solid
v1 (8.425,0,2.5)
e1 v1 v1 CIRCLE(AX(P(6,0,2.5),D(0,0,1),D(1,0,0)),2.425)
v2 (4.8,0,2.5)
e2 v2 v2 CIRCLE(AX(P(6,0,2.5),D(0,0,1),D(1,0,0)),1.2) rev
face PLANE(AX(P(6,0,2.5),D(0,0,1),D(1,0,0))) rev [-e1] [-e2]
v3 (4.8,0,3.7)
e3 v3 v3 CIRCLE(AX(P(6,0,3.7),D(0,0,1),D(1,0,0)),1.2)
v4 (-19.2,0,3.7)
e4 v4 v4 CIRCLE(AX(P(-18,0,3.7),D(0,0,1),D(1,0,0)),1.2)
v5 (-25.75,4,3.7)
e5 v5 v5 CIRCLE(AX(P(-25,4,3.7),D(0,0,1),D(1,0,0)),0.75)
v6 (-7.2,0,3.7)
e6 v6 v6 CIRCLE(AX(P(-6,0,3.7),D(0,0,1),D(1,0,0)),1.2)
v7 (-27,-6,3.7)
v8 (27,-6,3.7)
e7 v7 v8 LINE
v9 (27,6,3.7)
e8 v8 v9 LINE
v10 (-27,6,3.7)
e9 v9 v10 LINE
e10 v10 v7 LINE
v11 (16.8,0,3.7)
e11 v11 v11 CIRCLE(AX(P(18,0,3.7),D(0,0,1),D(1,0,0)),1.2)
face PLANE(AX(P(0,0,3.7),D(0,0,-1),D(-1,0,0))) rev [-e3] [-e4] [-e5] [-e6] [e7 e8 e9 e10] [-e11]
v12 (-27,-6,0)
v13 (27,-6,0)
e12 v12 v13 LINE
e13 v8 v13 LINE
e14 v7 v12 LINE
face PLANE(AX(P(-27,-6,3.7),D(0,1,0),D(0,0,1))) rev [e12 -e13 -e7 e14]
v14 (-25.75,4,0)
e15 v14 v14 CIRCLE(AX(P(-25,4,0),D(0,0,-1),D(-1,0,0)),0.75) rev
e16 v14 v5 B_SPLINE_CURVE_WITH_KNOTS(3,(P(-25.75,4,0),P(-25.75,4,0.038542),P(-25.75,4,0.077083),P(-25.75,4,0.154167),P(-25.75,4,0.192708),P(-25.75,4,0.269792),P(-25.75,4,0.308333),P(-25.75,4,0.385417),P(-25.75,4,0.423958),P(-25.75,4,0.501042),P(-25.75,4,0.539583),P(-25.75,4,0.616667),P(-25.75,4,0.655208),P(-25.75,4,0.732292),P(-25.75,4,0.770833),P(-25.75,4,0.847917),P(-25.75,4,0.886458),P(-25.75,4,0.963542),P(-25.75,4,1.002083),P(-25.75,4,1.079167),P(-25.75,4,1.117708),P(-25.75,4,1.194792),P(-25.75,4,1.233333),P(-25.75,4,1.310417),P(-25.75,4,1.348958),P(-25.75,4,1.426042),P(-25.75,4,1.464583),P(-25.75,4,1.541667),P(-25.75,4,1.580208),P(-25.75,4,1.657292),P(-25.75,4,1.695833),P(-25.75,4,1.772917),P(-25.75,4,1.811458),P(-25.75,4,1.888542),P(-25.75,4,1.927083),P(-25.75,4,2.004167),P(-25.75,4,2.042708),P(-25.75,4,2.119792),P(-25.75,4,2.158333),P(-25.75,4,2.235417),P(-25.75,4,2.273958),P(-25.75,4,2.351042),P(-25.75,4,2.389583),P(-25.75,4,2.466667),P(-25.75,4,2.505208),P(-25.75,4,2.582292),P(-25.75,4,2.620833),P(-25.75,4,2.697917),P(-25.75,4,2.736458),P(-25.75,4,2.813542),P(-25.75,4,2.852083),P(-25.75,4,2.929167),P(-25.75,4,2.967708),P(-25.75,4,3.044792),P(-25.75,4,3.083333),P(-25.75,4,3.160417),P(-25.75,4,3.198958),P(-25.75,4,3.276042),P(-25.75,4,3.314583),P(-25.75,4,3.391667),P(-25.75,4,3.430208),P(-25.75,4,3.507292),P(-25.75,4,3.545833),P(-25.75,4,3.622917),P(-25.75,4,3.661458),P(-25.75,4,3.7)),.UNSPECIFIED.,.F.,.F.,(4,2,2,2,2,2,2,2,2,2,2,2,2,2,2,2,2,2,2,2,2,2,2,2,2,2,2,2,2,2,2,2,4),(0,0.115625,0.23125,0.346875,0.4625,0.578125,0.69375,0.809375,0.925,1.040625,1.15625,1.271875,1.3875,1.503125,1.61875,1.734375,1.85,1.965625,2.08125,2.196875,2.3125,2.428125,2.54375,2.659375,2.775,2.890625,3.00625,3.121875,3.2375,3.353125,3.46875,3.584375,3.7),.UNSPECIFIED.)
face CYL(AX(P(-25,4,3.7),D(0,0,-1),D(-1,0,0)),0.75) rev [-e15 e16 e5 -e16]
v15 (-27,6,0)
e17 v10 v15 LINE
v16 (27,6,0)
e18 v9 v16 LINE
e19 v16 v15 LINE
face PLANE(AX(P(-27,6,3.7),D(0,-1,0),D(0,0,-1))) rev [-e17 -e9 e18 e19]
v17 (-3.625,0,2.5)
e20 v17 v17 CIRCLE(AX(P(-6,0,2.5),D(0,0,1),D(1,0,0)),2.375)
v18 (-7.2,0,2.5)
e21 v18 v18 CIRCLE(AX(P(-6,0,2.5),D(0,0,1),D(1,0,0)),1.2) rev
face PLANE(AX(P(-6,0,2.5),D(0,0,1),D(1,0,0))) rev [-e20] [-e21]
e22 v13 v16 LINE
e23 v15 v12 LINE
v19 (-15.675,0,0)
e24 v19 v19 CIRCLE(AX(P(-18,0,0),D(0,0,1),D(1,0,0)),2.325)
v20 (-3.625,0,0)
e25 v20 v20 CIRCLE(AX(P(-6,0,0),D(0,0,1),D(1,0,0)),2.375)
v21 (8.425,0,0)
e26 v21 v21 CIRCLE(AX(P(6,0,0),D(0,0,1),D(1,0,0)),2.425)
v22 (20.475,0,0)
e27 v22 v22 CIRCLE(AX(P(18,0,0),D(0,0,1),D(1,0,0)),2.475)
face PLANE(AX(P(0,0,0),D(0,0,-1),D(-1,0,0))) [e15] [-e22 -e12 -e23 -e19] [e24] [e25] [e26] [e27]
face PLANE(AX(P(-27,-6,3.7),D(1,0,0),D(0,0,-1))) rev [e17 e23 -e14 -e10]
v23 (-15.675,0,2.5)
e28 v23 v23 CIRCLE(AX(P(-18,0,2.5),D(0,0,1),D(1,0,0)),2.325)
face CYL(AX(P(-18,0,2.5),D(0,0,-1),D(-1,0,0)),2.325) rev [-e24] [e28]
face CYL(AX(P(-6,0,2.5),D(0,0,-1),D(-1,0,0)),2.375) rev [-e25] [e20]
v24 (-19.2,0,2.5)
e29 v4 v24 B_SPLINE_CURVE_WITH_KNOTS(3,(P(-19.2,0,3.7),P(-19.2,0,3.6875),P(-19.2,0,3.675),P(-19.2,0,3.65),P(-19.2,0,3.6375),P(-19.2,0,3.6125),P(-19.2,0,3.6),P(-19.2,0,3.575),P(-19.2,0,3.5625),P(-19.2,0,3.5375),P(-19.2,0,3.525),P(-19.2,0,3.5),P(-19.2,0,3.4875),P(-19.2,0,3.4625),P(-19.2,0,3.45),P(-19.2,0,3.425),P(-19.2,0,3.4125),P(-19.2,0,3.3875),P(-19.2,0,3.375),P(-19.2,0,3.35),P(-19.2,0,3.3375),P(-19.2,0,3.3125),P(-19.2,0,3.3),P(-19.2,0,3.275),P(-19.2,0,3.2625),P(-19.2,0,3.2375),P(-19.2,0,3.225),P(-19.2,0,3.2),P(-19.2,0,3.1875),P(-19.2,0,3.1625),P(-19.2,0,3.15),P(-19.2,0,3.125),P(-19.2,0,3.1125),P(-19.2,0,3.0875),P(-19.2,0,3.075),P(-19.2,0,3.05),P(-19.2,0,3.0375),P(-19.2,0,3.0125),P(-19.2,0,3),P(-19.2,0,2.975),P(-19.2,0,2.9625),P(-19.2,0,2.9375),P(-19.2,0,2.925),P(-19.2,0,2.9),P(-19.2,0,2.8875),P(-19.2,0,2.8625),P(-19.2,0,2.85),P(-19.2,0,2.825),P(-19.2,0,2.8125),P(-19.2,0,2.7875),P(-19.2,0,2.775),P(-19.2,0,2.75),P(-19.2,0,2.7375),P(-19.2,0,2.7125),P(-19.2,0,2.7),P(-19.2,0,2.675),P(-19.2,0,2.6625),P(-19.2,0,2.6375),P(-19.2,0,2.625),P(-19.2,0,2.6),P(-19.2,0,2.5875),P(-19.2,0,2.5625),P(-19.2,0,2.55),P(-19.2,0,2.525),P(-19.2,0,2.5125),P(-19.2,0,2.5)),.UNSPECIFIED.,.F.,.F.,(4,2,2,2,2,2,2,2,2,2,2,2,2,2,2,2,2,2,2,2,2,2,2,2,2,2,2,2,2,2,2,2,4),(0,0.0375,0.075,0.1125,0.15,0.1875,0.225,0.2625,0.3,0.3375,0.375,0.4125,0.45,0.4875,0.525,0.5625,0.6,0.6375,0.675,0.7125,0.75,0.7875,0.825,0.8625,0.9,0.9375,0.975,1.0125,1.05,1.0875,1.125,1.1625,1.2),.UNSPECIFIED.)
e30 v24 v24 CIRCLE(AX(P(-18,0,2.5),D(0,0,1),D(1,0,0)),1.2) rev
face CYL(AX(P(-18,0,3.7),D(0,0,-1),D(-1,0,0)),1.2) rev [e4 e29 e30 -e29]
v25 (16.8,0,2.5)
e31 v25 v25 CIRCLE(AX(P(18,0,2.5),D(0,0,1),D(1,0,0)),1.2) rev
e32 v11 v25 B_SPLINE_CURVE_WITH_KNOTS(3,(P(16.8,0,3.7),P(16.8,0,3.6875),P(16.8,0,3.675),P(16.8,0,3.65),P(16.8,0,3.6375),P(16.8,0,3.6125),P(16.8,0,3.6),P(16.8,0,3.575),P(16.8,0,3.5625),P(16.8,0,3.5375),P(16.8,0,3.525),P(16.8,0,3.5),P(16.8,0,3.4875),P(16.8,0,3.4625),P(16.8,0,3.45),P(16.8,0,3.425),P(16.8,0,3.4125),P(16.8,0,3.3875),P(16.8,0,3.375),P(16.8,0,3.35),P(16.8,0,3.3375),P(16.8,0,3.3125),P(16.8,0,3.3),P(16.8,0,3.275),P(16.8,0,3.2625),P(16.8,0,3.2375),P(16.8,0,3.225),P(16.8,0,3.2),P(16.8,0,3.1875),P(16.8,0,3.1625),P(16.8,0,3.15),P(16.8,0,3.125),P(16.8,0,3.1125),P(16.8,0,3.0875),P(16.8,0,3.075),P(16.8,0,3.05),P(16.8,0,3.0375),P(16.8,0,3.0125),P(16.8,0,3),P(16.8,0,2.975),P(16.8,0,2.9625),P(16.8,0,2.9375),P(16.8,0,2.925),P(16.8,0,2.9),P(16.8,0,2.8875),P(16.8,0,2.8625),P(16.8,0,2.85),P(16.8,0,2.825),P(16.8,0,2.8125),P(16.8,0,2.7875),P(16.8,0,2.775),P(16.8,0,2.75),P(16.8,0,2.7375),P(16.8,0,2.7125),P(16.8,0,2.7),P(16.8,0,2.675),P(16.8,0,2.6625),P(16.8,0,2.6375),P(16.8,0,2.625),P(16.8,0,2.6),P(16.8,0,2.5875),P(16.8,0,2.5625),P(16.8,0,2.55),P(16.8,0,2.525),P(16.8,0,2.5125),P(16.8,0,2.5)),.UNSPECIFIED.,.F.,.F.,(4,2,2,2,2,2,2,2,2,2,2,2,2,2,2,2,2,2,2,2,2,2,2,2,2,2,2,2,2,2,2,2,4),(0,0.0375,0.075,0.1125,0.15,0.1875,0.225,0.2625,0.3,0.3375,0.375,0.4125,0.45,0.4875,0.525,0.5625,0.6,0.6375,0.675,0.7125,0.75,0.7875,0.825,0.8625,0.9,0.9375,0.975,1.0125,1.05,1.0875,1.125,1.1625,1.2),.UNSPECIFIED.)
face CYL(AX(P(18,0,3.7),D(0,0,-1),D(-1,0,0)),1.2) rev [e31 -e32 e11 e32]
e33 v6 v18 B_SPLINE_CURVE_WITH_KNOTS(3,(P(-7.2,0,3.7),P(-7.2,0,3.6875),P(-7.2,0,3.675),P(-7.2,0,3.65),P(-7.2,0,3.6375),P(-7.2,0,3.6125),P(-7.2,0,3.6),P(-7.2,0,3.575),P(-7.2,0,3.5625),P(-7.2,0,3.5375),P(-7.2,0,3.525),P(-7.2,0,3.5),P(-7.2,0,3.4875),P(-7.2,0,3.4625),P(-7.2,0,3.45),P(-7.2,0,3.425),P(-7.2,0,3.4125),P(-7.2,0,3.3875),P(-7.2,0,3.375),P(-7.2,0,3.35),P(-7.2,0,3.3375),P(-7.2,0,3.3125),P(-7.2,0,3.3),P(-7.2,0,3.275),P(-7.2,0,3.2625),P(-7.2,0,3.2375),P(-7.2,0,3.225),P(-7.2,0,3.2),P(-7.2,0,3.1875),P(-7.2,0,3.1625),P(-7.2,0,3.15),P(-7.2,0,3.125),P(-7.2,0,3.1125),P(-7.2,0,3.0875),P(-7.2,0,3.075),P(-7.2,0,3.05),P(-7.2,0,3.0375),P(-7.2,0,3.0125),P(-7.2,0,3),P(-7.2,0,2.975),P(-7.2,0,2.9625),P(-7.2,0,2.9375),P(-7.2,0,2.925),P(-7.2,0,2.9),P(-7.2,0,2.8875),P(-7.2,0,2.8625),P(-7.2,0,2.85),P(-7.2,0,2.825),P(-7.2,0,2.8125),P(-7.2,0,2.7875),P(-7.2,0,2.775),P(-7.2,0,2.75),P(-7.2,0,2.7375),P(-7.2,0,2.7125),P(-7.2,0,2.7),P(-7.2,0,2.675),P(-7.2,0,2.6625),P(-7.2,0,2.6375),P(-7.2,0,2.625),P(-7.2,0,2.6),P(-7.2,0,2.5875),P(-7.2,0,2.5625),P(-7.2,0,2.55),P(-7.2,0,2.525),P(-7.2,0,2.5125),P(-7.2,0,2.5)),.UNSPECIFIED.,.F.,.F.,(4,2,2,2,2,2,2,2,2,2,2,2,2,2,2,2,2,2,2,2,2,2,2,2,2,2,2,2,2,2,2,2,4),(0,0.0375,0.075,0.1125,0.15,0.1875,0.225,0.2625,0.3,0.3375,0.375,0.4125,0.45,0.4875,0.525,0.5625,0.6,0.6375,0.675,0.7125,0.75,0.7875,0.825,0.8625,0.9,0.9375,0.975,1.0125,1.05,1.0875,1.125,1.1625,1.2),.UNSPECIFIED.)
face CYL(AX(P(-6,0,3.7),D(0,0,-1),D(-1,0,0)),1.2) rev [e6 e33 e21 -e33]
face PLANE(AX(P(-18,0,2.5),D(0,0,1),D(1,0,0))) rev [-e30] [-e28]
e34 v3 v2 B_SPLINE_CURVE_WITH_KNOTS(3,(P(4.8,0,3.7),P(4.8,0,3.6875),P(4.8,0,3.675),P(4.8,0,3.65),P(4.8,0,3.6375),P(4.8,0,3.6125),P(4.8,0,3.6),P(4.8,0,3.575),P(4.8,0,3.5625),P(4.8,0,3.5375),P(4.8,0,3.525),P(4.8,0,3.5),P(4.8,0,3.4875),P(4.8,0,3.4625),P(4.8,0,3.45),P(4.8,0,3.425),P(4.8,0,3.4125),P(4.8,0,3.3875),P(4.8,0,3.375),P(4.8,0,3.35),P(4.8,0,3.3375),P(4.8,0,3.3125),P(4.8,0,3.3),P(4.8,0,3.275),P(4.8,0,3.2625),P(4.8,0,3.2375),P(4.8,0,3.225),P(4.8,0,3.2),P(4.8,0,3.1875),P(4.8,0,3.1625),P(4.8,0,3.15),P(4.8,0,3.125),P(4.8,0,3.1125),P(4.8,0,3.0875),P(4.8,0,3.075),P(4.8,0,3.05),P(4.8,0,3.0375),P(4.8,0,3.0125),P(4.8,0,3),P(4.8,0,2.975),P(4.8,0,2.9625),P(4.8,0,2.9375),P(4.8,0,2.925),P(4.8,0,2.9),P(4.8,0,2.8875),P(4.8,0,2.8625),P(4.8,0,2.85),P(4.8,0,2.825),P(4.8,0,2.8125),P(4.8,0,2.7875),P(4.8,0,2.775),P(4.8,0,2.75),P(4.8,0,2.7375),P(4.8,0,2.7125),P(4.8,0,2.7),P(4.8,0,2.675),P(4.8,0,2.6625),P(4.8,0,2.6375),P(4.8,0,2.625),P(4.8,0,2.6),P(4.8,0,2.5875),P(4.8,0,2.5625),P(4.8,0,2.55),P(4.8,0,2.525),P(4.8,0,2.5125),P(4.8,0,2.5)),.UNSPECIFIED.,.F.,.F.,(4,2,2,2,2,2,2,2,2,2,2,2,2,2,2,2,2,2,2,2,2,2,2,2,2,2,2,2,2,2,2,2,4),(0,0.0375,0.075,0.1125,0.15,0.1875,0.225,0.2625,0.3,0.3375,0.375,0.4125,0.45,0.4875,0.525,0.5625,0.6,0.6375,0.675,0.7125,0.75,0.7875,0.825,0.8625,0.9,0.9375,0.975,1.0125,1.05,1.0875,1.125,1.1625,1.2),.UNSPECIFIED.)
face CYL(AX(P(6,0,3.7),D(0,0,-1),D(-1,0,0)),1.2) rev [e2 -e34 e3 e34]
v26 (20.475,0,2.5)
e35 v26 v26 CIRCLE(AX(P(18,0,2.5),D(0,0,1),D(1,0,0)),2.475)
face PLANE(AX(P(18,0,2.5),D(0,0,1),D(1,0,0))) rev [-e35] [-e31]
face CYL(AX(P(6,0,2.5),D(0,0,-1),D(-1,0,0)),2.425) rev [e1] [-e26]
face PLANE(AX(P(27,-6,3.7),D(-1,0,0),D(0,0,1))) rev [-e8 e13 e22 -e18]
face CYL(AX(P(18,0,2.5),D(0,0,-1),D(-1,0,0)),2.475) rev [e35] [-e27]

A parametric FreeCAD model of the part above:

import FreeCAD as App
import Part
import Sketcher

V = App.Vector
Q = App.Units.Quantity


def add_polygon(sketch, points):
    """Adds a closed chain of lines whose ends are joined by coincident constraints."""
    first, n = sketch.GeometryCount, len(points)
    for a, b in zip(points, points[1:] + points[:1]):
        sketch.addGeometry(Part.LineSegment(App.Vector(*a, 0), App.Vector(*b, 0)), False)
    for i in range(n):
        sketch.addConstraint(Sketcher.Constraint("Coincident", first + i, 2, first + (i + 1) % n, 1))

doc = App.newDocument("Part")
body = doc.addObject("PartDesign::Body", "Body")

# Sketch on XY plane
sketch1 = body.newObject("Sketcher::SketchObject", "Sketch")
sketch1.AttachmentSupport = (doc.getObject("XY_Plane"), [""])
sketch1.MapMode = "FlatFace"
add_polygon(sketch1, [(-27, 6), (-27, -6), (27, -6), (27, 6)])  # lines 0-3
sketch1.addConstraint([
    Sketcher.Constraint("Vertical", 0),
    Sketcher.Constraint("Horizontal", 1),
    Sketcher.Constraint("Vertical", 2),
    Sketcher.Constraint("Horizontal", 3),
    Sketcher.Constraint("Symmetric", 0, 2, 2, 2, -1, 1),
    Sketcher.Constraint("DistanceX", 1, 1, 1, 2, Q("54 mm")),
    Sketcher.Constraint("DistanceY", 0, 2, 0, 1, Q("12 mm")),
])
pad1 = body.newObject("PartDesign::Pad", "Pad")
pad1.Profile = sketch1
pad1.Length = 3.7

# Sketch on XY plane
sketch2 = body.newObject("Sketcher::SketchObject", "Sketch001")
sketch2.AttachmentSupport = (doc.getObject("XY_Plane"), [""])
sketch2.MapMode = "FlatFace"
sketch2.addGeometry([
    Part.Circle(V(-18, 0, 0), V(0, 0, 1), 2.3),
    Part.Circle(V(-6, 0, 0), V(0, 0, 1), 2.4),
    Part.Circle(V(6, 0, 0), V(0, 0, 1), 2.4),
    Part.Circle(V(18, 0, 0), V(0, 0, 1), 2.5),
], False)
sketch2.addConstraint([
    Sketcher.Constraint("Symmetric", 1, 3, 2, 3, -1, 1),
    Sketcher.Constraint("Symmetric", 0, 3, 3, 3, -1, 1),
    Sketcher.Constraint("PointOnObject", 0, 3, -1),
    Sketcher.Constraint("PointOnObject", 1, 3, -1),
    Sketcher.Constraint("Diameter", 0, Q("4.65 mm")),
    Sketcher.Constraint("Diameter", 1, Q("4.75 mm")),
    Sketcher.Constraint("Diameter", 2, Q("4.85 mm")),
    Sketcher.Constraint("Diameter", 3, Q("4.95 mm")),
    Sketcher.Constraint("DistanceX", 0, 3, -1, 1, Q("18 mm")),
    Sketcher.Constraint("DistanceX", 1, 3, -1, 1, Q("6 mm")),
])
pocket1 = body.newObject("PartDesign::Pocket", "Pocket")
pocket1.Profile = sketch2
pocket1.Length = 2.5
pocket1.Reversed = True

# Sketch on XY plane
sketch3 = body.newObject("Sketcher::SketchObject", "Sketch002")
sketch3.AttachmentSupport = (doc.getObject("XY_Plane"), [""])
sketch3.MapMode = "FlatFace"
sketch3.AttachmentOffset = App.Placement(V(0, 0, -50), App.Rotation())
sketch3.addGeometry([
    Part.Circle(V(-18, 0, 0), V(0, 0, 1), 1.2),
    Part.Circle(V(-6, 0, 0), V(0, 0, 1), 1.2),
    Part.Circle(V(6, 0, 0), V(0, 0, 1), 1.2),
    Part.Circle(V(18, 0, 0), V(0, 0, 1), 1.2),
], False)
sketch3.addConstraint([
    Sketcher.Constraint("Equal", 0, 1),
    Sketcher.Constraint("Equal", 1, 2),
    Sketcher.Constraint("Equal", 2, 3),
    Sketcher.Constraint("Symmetric", 1, 3, 2, 3, -1, 1),
    Sketcher.Constraint("Symmetric", 0, 3, 3, 3, -1, 1),
    Sketcher.Constraint("PointOnObject", 0, 3, -1),
    Sketcher.Constraint("PointOnObject", 1, 3, -1),
    Sketcher.Constraint("Diameter", 0, Q("2.4 mm")),
    Sketcher.Constraint("DistanceX", 0, 3, -1, 1, Q("18 mm")),
    Sketcher.Constraint("DistanceX", 1, 3, -1, 1, Q("6 mm")),
])
pocket2 = body.newObject("PartDesign::Pocket", "Pocket001")
pocket2.Profile = sketch3
pocket2.Type = "ThroughAll"
pocket2.Reversed = True

# Sketch on XY plane
sketch4 = body.newObject("Sketcher::SketchObject", "Sketch003")
sketch4.AttachmentSupport = (doc.getObject("XY_Plane"), [""])
sketch4.MapMode = "FlatFace"
sketch4.AttachmentOffset = App.Placement(V(0, 0, -50), App.Rotation())
sketch4.addGeometry(Part.Circle(V(-25, 4, 0), V(0, 0, 1), 0.8), False)
sketch4.addConstraint([
    Sketcher.Constraint("Diameter", 0, Q("1.5 mm")),
    Sketcher.Constraint("DistanceX", 0, 3, -1, 1, Q("25 mm")),
    Sketcher.Constraint("DistanceY", -1, 1, 0, 3, Q("4 mm")),
])
pocket3 = body.newObject("PartDesign::Pocket", "Pocket002")
pocket3.Profile = sketch4
pocket3.Type = "ThroughAll"
pocket3.Reversed = True

doc.recompute()
